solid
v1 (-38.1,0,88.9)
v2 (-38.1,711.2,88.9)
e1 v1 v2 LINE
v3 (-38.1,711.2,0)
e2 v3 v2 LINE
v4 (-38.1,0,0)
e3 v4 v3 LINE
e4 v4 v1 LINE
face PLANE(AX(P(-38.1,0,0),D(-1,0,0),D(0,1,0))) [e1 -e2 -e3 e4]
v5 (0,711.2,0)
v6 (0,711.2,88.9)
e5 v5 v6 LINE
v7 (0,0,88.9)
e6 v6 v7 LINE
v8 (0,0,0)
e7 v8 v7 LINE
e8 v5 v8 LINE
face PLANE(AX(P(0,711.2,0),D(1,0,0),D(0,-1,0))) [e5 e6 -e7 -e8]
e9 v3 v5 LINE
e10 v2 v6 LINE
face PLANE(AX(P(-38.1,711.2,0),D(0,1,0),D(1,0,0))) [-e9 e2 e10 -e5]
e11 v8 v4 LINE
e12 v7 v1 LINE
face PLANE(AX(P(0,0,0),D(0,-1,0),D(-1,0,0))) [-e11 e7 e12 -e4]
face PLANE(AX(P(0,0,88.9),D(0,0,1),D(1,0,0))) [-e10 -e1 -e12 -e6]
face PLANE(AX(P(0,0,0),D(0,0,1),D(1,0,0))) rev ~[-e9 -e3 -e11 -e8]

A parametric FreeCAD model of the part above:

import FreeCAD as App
import Part
import Sketcher

V = App.Vector
Q = App.Units.Quantity

doc = App.newDocument("Part")
params = doc.addObject("Spreadsheet::Sheet", "Params")
for row, (alias, value) in enumerate([
    ("sketch1_height", "28 in"),
    ("sketch1_width", "1.5 in"),
    ("pad1_length", "3.5 in"),
], start=1):
    params.set(f"A{row}", alias)
    params.set(f"B{row}", "=" + value)
    params.setAlias(f"B{row}", alias)

body = doc.addObject("PartDesign::Body", "Body")

sketch1 = body.newObject("Sketcher::SketchObject", "Sketch")
sketch1.AttachmentSupport = (doc.getObject("XY_Plane"), [""])
sketch1.MapMode = "FlatFace"
sketch1.addGeometry(Part.LineSegment(V(-38, 0, 0), V(0, 0, 0)), False)
sketch1.addGeometry(Part.LineSegment(V(0, 0, 0), V(0, 711, 0)), False)
sketch1.addGeometry(Part.LineSegment(V(0, 711, 0), V(-38, 711, 0)), False)
sketch1.addGeometry(Part.LineSegment(V(-38, 711, 0), V(-38, 0, 0)), False)
sketch1.addConstraint(Sketcher.Constraint("Coincident", 0, 2, 1, 1))
sketch1.addConstraint(Sketcher.Constraint("Coincident", 1, 2, 2, 1))
sketch1.addConstraint(Sketcher.Constraint("Coincident", 2, 2, 3, 1))
sketch1.addConstraint(Sketcher.Constraint("Coincident", 3, 2, 0, 1))
sketch1.addConstraint(Sketcher.Constraint("Horizontal", 0))
sketch1.addConstraint(Sketcher.Constraint("Vertical", 1))
sketch1.addConstraint(Sketcher.Constraint("Horizontal", 2))
sketch1.addConstraint(Sketcher.Constraint("Vertical", 3))
sketch1.addConstraint(Sketcher.Constraint("Coincident", 0, 2, -1, 1))
sketch1.addConstraint(Sketcher.Constraint("DistanceY", 1, 1, 1, 2, Q("28 in")))
sketch1.addConstraint(Sketcher.Constraint("DistanceX", 0, 1, 0, 2, Q("1.5 in")))
sketch1.setExpression("Constraints[9]", "Params.sketch1_height")
sketch1.setExpression("Constraints[10]", "Params.sketch1_width")
pad1 = body.newObject("PartDesign::Pad", "Pad")
pad1.Profile = sketch1
pad1.setExpression("Length", "Params.pad1_length")

doc.recompute()
